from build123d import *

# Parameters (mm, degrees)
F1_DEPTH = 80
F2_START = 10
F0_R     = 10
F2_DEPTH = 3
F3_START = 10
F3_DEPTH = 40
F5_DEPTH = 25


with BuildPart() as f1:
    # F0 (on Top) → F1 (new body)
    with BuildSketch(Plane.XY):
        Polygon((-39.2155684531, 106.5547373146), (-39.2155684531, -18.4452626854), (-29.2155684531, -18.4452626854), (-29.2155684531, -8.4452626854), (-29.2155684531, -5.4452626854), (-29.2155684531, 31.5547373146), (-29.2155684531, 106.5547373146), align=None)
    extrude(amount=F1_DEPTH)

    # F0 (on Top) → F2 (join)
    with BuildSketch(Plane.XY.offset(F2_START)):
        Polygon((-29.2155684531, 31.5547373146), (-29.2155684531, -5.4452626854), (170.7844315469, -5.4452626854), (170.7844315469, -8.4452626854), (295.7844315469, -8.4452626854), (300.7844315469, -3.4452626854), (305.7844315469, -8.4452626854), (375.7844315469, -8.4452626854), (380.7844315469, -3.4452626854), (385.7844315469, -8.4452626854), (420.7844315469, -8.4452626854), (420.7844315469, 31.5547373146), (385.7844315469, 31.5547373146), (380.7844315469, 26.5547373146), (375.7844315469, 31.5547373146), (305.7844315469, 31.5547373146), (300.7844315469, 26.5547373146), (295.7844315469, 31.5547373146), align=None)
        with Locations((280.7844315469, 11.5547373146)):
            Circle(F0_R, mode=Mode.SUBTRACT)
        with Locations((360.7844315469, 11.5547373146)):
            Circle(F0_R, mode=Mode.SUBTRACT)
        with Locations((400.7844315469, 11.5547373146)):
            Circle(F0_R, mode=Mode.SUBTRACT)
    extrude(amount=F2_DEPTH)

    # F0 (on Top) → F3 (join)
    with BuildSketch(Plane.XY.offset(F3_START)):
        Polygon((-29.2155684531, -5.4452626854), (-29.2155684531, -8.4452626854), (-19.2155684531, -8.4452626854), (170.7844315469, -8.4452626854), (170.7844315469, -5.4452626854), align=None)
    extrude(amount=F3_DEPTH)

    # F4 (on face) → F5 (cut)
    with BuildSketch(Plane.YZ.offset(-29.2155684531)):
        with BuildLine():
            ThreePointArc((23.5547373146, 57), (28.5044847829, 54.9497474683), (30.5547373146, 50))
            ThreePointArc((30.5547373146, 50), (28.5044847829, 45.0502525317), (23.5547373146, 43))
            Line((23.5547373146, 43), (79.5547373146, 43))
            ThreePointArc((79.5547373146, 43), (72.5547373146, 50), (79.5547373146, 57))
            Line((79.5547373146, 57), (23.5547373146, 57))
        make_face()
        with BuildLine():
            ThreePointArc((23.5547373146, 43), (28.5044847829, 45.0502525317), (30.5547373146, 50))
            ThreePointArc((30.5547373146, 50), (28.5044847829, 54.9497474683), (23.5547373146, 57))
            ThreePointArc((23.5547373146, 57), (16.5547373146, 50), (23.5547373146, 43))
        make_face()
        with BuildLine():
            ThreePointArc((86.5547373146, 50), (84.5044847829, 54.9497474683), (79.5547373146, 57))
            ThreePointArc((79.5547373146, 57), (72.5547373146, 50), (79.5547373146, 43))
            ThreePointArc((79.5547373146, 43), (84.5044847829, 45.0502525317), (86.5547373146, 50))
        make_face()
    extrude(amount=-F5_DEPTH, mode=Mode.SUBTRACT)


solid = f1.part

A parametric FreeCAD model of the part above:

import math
import FreeCAD as App
import Part
import Sketcher

doc = App.newDocument("Part")
body = doc.addObject("PartDesign::Body", "Body")

# Sketch on XY plane
sketch1 = body.newObject("Sketcher::SketchObject", "Sketch")
sketch1.AttachmentSupport = (doc.getObject("XY_Plane"), [""])
sketch1.MapMode = "FlatFace"
sketch1.addGeometry([
    Part.LineSegment(App.Vector(-39, 107, 0), App.Vector(-39, -18, 0)),
    Part.LineSegment(App.Vector(-39, -18, 0), App.Vector(-29, -18, 0)),
    Part.LineSegment(App.Vector(-29, -18, 0), App.Vector(-29, 107, 0)),
    Part.LineSegment(App.Vector(-29, 107, 0), App.Vector(-39, 107, 0)),
], False)
sketch1.addConstraint([
    Sketcher.Constraint("Coincident", 0, 2, 1, 1),
    Sketcher.Constraint("Coincident", 1, 2, 2, 1),
    Sketcher.Constraint("Coincident", 2, 2, 3, 1),
    Sketcher.Constraint("Coincident", 3, 2, 0, 1),
    Sketcher.Constraint("Vertical", 0),
    Sketcher.Constraint("Horizontal", 1),
    Sketcher.Constraint("Vertical", 2),
    Sketcher.Constraint("Horizontal", 3),
    Sketcher.Constraint("DistanceX", 1, 1, 1, 2, 10.0),
    Sketcher.Constraint("DistanceY", 0, 2, 0, 1, 125.0),
    Sketcher.Constraint("DistanceX", 0, 2, -1, 1, 39.215568),
    Sketcher.Constraint("DistanceY", 0, 2, -1, 1, 18.445263),
])
pad1 = body.newObject("PartDesign::Pad", "Pad")
pad1.Profile = sketch1
pad1.Length = 80

# Sketch on XY plane
sketch2 = body.newObject("Sketcher::SketchObject", "Sketch001")
sketch2.AttachmentSupport = (doc.getObject("XY_Plane"), [""])
sketch2.MapMode = "FlatFace"
sketch2.AttachmentOffset = App.Placement(App.Vector(0, 0, 10), App.Rotation())
sketch2.addGeometry([
    Part.LineSegment(App.Vector(-29.2, 31.6, 0), App.Vector(-29.2, -5.4, 0)),  # 0
    Part.LineSegment(App.Vector(-29.2, -5.4, 0), App.Vector(170.8, -5.4, 0)),  # 1
    Part.LineSegment(App.Vector(170.8, -5.4, 0), App.Vector(170.8, -8.4, 0)),  # 2
    Part.LineSegment(App.Vector(170.8, -8.4, 0), App.Vector(295.8, -8.4, 0)),  # 3
    Part.LineSegment(App.Vector(295.8, -8.4, 0), App.Vector(300.8, -3.4, 0)),  # 4
    Part.LineSegment(App.Vector(300.8, -3.4, 0), App.Vector(305.8, -8.4, 0)),  # 5
    Part.LineSegment(App.Vector(305.8, -8.4, 0), App.Vector(375.8, -8.4, 0)),  # 6
    Part.LineSegment(App.Vector(375.8, -8.4, 0), App.Vector(380.8, -3.4, 0)),  # 7
    Part.LineSegment(App.Vector(380.8, -3.4, 0), App.Vector(385.8, -8.4, 0)),  # 8
    Part.LineSegment(App.Vector(385.8, -8.4, 0), App.Vector(420.8, -8.4, 0)),  # 9
    Part.LineSegment(App.Vector(420.8, -8.4, 0), App.Vector(420.8, 31.6, 0)),  # 10
    Part.LineSegment(App.Vector(420.8, 31.6, 0), App.Vector(385.8, 31.6, 0)),  # 11
    Part.LineSegment(App.Vector(385.8, 31.6, 0), App.Vector(380.8, 26.6, 0)),  # 12
    Part.LineSegment(App.Vector(380.8, 26.6, 0), App.Vector(375.8, 31.6, 0)),  # 13
    Part.LineSegment(App.Vector(375.8, 31.6, 0), App.Vector(305.8, 31.6, 0)),  # 14
    Part.LineSegment(App.Vector(305.8, 31.6, 0), App.Vector(300.8, 26.6, 0)),  # 15
    Part.LineSegment(App.Vector(300.8, 26.6, 0), App.Vector(295.8, 31.6, 0)),  # 16
    Part.LineSegment(App.Vector(295.8, 31.6, 0), App.Vector(-29.2, 31.6, 0)),  # 17
    Part.Circle(App.Vector(280.8, 11.6, 0), App.Vector(0, 0, 1), 10),  # 18
    Part.Circle(App.Vector(360.8, 11.6, 0), App.Vector(0, 0, 1), 10),  # 19
    Part.Circle(App.Vector(400.8, 11.6, 0), App.Vector(0, 0, 1), 10),  # 20
], False)
sketch2.addConstraint([
    Sketcher.Constraint("Coincident", 0, 2, 1, 1),
    Sketcher.Constraint("Coincident", 1, 2, 2, 1),
    Sketcher.Constraint("Coincident", 2, 2, 3, 1),
    Sketcher.Constraint("Coincident", 3, 2, 4, 1),
    Sketcher.Constraint("Coincident", 4, 2, 5, 1),
    Sketcher.Constraint("Coincident", 5, 2, 6, 1),
    Sketcher.Constraint("Coincident", 6, 2, 7, 1),
    Sketcher.Constraint("Coincident", 7, 2, 8, 1),
    Sketcher.Constraint("Coincident", 8, 2, 9, 1),
    Sketcher.Constraint("Coincident", 9, 2, 10, 1),
    Sketcher.Constraint("Coincident", 10, 2, 11, 1),
    Sketcher.Constraint("Coincident", 11, 2, 12, 1),
    Sketcher.Constraint("Coincident", 12, 2, 13, 1),
    Sketcher.Constraint("Coincident", 13, 2, 14, 1),
    Sketcher.Constraint("Coincident", 14, 2, 15, 1),
    Sketcher.Constraint("Coincident", 15, 2, 16, 1),
    Sketcher.Constraint("Coincident", 16, 2, 17, 1),
    Sketcher.Constraint("Coincident", 17, 2, 0, 1),
    Sketcher.Constraint("Vertical", 0),
    Sketcher.Constraint("Horizontal", 1),
    Sketcher.Constraint("Vertical", 2),
    Sketcher.Constraint("Horizontal", 3),
    Sketcher.Constraint("Horizontal", 6),
    Sketcher.Constraint("Horizontal", 9),
    Sketcher.Constraint("Vertical", 10),
    Sketcher.Constraint("Horizontal", 11),
    Sketcher.Constraint("Horizontal", 14),
    Sketcher.Constraint("Horizontal", 17),
    Sketcher.Constraint("Equal", 18, 19),
    Sketcher.Constraint("Equal", 19, 20),
    Sketcher.Constraint("Perpendicular", 4, 5),
    Sketcher.Constraint("Perpendicular", 5, 7),
    Sketcher.Constraint("Perpendicular", 7, 8),
    Sketcher.Constraint("Perpendicular", 8, 12),
    Sketcher.Constraint("Perpendicular", 12, 13),
    Sketcher.Constraint("Perpendicular", 13, 15),
    Sketcher.Constraint("Perpendicular", 15, 16),
    Sketcher.Constraint("Horizontal", 18, 3, 19, 3),
    Sketcher.Constraint("Horizontal", 19, 3, 20, 3),
    Sketcher.Constraint("Horizontal", 3, 2, 5, 2),
    Sketcher.Constraint("Horizontal", 4, 2, 7, 2),
    Sketcher.Constraint("Horizontal", 6, 2, 8, 2),
    Sketcher.Constraint("Horizontal", 11, 2, 13, 2),
    Sketcher.Constraint("Horizontal", 12, 2, 15, 2),
    Sketcher.Constraint("Horizontal", 14, 2, 16, 2),
    Sketcher.Constraint("Vertical", 8, 2, 11, 2),
    Sketcher.Constraint("Vertical", 7, 2, 12, 2),
    Sketcher.Constraint("Vertical", 6, 2, 13, 2),
    Sketcher.Constraint("Vertical", 5, 2, 14, 2),
    Sketcher.Constraint("Diameter", 18, 20.0),
    Sketcher.Constraint("DistanceX", 1, 1, 1, 2, 200.0),
    Sketcher.Constraint("DistanceX", 3, 1, 3, 2, 125.0),
    Sketcher.Constraint("DistanceX", 6, 1, 6, 2, 70.0),
    Sketcher.Constraint("DistanceX", 9, 1, 9, 2, 35.0),
    Sketcher.Constraint("DistanceY", 0, 2, 0, 1, 37.0),
    Sketcher.Constraint("DistanceY", 2, 2, 2, 1, 3.0),
    Sketcher.Constraint("DistanceX", 18, 3, 19, 3, 80.0),
    Sketcher.Constraint("DistanceX", 19, 3, 20, 3, 40.0),
    Sketcher.Constraint("DistanceX", 0, 2, 18, 3, 310.0),
    Sketcher.Constraint("DistanceY", 0, 2, 18, 3, 17.0),
    Sketcher.Constraint("DistanceX", 3, 2, 4, 2, 5.0),
    Sketcher.Constraint("DistanceX", -1, 1, 18, 3, 280.784432),
    Sketcher.Constraint("DistanceY", -1, 1, 18, 3, 11.554737),
])
pad2 = body.newObject("PartDesign::Pad", "Pad001")
pad2.Profile = sketch2
pad2.Length = 3

# Sketch on XY plane
sketch3 = body.newObject("Sketcher::SketchObject", "Sketch002")
sketch3.AttachmentSupport = (doc.getObject("XY_Plane"), [""])
sketch3.MapMode = "FlatFace"
sketch3.AttachmentOffset = App.Placement(App.Vector(0, 0, 10), App.Rotation())
sketch3.addGeometry([
    Part.LineSegment(App.Vector(-29.2, -5.4, 0), App.Vector(-29.2, -8.4, 0)),
    Part.LineSegment(App.Vector(-29.2, -8.4, 0), App.Vector(170.8, -8.4, 0)),
    Part.LineSegment(App.Vector(170.8, -8.4, 0), App.Vector(170.8, -5.4, 0)),
    Part.LineSegment(App.Vector(170.8, -5.4, 0), App.Vector(-29.2, -5.4, 0)),
], False)
sketch3.addConstraint([
    Sketcher.Constraint("Coincident", 0, 2, 1, 1),
    Sketcher.Constraint("Coincident", 1, 2, 2, 1),
    Sketcher.Constraint("Coincident", 2, 2, 3, 1),
    Sketcher.Constraint("Coincident", 3, 2, 0, 1),
    Sketcher.Constraint("Vertical", 0),
    Sketcher.Constraint("Horizontal", 1),
    Sketcher.Constraint("Vertical", 2),
    Sketcher.Constraint("Horizontal", 3),
    Sketcher.Constraint("DistanceX", 1, 1, 1, 2, 200.0),
    Sketcher.Constraint("DistanceY", 0, 2, 0, 1, 3.0),
    Sketcher.Constraint("DistanceX", 0, 2, -1, 1, 29.215568),
    Sketcher.Constraint("DistanceY", 0, 2, -1, 1, 8.445263),
])
pad3 = body.newObject("PartDesign::Pad", "Pad002")
pad3.Profile = sketch3
pad3.Length = 40

# Sketch on YZ plane
sketch4 = body.newObject("Sketcher::SketchObject", "Sketch003")
sketch4.AttachmentSupport = (doc.getObject("YZ_Plane"), [""])
sketch4.MapMode = "FlatFace"
sketch4.AttachmentOffset = App.Placement(App.Vector(0, 0, -29.215568), App.Rotation())
sketch4.addGeometry([
    Part.LineSegment(App.Vector(24, 43, 0), App.Vector(80, 43, 0)),  # 0
    Part.ArcOfCircle(Part.Circle(App.Vector(80, 50, 0), App.Vector(0, 0, 1), 7), math.radians(-90), math.radians(0)),  # 1
    Part.ArcOfCircle(Part.Circle(App.Vector(80, 50, 0), App.Vector(0, 0, 1), 7), math.radians(0), math.radians(90)),  # 2
    Part.LineSegment(App.Vector(80, 57, 0), App.Vector(24, 57, 0)),  # 3
    Part.ArcOfCircle(Part.Circle(App.Vector(24, 50, 0), App.Vector(0, 0, 1), 7), math.radians(90), math.radians(270)),  # 4
], False)
sketch4.addConstraint([
    Sketcher.Constraint("Tangent", 0, 2, 1, 1),
    Sketcher.Constraint("Tangent", 1, 2, 2, 1),
    Sketcher.Constraint("Tangent", 2, 2, 3, 1),
    Sketcher.Constraint("Tangent", 3, 2, 4, 1),
    Sketcher.Constraint("Tangent", 4, 2, 0, 1),
    Sketcher.Constraint("Horizontal", 0),
    Sketcher.Constraint("Horizontal", 3),
    Sketcher.Constraint("Equal", 1, 2),
    Sketcher.Constraint("Horizontal", 4, 3, 1, 2),
    Sketcher.Constraint("Radius", 1, 7.0),
    Sketcher.Constraint("DistanceX", 0, 1, 0, 2, 56.0),
    Sketcher.Constraint("DistanceY", -1, 1, 1, 3, 50.0),
    Sketcher.Constraint("DistanceX", -1, 1, 1, 3, 79.554737),
])
pocket1 = body.newObject("PartDesign::Pocket", "Pocket")
pocket1.Profile = sketch4
pocket1.Length = 25

doc.recompute()
